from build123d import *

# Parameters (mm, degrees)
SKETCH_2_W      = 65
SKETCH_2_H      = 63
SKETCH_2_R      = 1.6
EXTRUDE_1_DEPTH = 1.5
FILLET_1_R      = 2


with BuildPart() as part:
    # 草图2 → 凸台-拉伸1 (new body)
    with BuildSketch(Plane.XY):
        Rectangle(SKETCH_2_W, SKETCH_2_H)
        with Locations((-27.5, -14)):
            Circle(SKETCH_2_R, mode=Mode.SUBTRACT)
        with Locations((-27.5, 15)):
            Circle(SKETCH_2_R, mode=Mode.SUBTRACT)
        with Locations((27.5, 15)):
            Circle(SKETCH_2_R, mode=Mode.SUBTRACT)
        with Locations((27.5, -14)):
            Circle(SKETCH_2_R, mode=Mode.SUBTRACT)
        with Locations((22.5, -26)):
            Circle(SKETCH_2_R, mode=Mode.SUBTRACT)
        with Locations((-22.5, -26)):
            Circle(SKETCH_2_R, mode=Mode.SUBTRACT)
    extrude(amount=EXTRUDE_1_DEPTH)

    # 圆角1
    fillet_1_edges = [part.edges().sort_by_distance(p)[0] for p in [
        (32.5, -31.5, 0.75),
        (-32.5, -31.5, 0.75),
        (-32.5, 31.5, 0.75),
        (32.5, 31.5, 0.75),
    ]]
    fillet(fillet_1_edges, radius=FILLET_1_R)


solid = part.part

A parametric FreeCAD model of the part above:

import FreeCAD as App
import Part
import Sketcher
from FreeCAD import Vector
Q = App.Units.Quantity


def edges_at(feature, points):
    """Names of the edges that pass closest to the given points."""
    edges = feature.Shape.Edges
    near = lambda p: min(range(len(edges)), key=lambda i: edges[i].distToShape(Part.Vertex(*p))[0])
    return sorted({f"Edge{near(p) + 1}" for p in points})

doc = App.newDocument("Part")
body = doc.addObject("PartDesign::Body", "Body")

# Sketch on XY plane
sketch1 = body.newObject("Sketcher::SketchObject", "Sketch")
sketch1.AttachmentSupport = (doc.getObject("XY_Plane"), [""])
sketch1.MapMode = "FlatFace"
sketch1.addGeometry(Part.LineSegment(Vector(-32.5, 31.5, 0), Vector(-32.5, -31.5, 0)), False)
sketch1.addGeometry(Part.LineSegment(Vector(-32.5, -31.5, 0), Vector(32.5, -31.5, 0)), False)
sketch1.addGeometry(Part.LineSegment(Vector(32.5, -31.5, 0), Vector(32.5, 31.5, 0)), False)
sketch1.addGeometry(Part.LineSegment(Vector(32.5, 31.5, 0), Vector(-32.5, 31.5, 0)), False)
sketch1.addGeometry(Part.Circle(Vector(-22.5, -26, 0), Vector(0, 0, 1), 1.6), False)
sketch1.addGeometry(Part.Circle(Vector(-27.5, -14, 0), Vector(0, 0, 1), 1.6), False)
sketch1.addGeometry(Part.Circle(Vector(22.5, -26, 0), Vector(0, 0, 1), 1.6), False)
sketch1.addGeometry(Part.Circle(Vector(27.5, -14, 0), Vector(0, 0, 1), 1.6), False)
sketch1.addGeometry(Part.Circle(Vector(-27.5, 15, 0), Vector(0, 0, 1), 1.6), False)
sketch1.addGeometry(Part.Circle(Vector(27.5, 15, 0), Vector(0, 0, 1), 1.6), False)
sketch1.addConstraint(Sketcher.Constraint("Coincident", 0, 2, 1, 1))
sketch1.addConstraint(Sketcher.Constraint("Coincident", 1, 2, 2, 1))
sketch1.addConstraint(Sketcher.Constraint("Coincident", 2, 2, 3, 1))
sketch1.addConstraint(Sketcher.Constraint("Coincident", 3, 2, 0, 1))
sketch1.addConstraint(Sketcher.Constraint("Vertical", 0))
sketch1.addConstraint(Sketcher.Constraint("Horizontal", 1))
sketch1.addConstraint(Sketcher.Constraint("Vertical", 2))
sketch1.addConstraint(Sketcher.Constraint("Horizontal", 3))
sketch1.addConstraint(Sketcher.Constraint("Equal", 4, 5))
sketch1.addConstraint(Sketcher.Constraint("Equal", 5, 6))
sketch1.addConstraint(Sketcher.Constraint("Equal", 6, 7))
sketch1.addConstraint(Sketcher.Constraint("Equal", 7, 8))
sketch1.addConstraint(Sketcher.Constraint("Equal", 8, 9))
sketch1.addConstraint(Sketcher.Constraint("Symmetric", 0, 2, 2, 2, -1, 1))
sketch1.addConstraint(Sketcher.Constraint("Symmetric", 4, 3, 6, 3, -2))
sketch1.addConstraint(Sketcher.Constraint("Symmetric", 5, 3, 7, 3, -2))
sketch1.addConstraint(Sketcher.Constraint("Symmetric", 8, 3, 9, 3, -2))
sketch1.addConstraint(Sketcher.Constraint("Vertical", 5, 3, 8, 3))
sketch1.addConstraint(Sketcher.Constraint("Diameter", 4, Q("3.2 mm")))
sketch1.addConstraint(Sketcher.Constraint("DistanceX", 1, 1, 1, 2, Q("65 mm")))
sketch1.addConstraint(Sketcher.Constraint("DistanceY", 0, 2, 0, 1, Q("63 mm")))
sketch1.addConstraint(Sketcher.Constraint("DistanceY", 4, 3, -1, 1, Q("26 mm")))
sketch1.addConstraint(Sketcher.Constraint("DistanceY", 5, 3, -1, 1, Q("14 mm")))
sketch1.addConstraint(Sketcher.Constraint("DistanceY", -1, 1, 8, 3, Q("15 mm")))
sketch1.addConstraint(Sketcher.Constraint("DistanceX", 5, 3, 4, 3, Q("5 mm")))
sketch1.addConstraint(Sketcher.Constraint("DistanceX", 4, 3, 6, 3, Q("45 mm")))
pad1 = body.newObject("PartDesign::Pad", "Pad")
pad1.Profile = sketch1
pad1.Length = 1.5
doc.recompute()

fillet = body.newObject("PartDesign::Fillet", "Fillet")
fillet.Base = (pad1, edges_at(pad1, [
    (32.5, -31.5, 0.75),
    (-32.5, -31.5, 0.75),
    (-32.5, 31.5, 0.75),
    (32.5, 31.5, 0.75),
]))
fillet.Radius = 2

doc.recompute()
